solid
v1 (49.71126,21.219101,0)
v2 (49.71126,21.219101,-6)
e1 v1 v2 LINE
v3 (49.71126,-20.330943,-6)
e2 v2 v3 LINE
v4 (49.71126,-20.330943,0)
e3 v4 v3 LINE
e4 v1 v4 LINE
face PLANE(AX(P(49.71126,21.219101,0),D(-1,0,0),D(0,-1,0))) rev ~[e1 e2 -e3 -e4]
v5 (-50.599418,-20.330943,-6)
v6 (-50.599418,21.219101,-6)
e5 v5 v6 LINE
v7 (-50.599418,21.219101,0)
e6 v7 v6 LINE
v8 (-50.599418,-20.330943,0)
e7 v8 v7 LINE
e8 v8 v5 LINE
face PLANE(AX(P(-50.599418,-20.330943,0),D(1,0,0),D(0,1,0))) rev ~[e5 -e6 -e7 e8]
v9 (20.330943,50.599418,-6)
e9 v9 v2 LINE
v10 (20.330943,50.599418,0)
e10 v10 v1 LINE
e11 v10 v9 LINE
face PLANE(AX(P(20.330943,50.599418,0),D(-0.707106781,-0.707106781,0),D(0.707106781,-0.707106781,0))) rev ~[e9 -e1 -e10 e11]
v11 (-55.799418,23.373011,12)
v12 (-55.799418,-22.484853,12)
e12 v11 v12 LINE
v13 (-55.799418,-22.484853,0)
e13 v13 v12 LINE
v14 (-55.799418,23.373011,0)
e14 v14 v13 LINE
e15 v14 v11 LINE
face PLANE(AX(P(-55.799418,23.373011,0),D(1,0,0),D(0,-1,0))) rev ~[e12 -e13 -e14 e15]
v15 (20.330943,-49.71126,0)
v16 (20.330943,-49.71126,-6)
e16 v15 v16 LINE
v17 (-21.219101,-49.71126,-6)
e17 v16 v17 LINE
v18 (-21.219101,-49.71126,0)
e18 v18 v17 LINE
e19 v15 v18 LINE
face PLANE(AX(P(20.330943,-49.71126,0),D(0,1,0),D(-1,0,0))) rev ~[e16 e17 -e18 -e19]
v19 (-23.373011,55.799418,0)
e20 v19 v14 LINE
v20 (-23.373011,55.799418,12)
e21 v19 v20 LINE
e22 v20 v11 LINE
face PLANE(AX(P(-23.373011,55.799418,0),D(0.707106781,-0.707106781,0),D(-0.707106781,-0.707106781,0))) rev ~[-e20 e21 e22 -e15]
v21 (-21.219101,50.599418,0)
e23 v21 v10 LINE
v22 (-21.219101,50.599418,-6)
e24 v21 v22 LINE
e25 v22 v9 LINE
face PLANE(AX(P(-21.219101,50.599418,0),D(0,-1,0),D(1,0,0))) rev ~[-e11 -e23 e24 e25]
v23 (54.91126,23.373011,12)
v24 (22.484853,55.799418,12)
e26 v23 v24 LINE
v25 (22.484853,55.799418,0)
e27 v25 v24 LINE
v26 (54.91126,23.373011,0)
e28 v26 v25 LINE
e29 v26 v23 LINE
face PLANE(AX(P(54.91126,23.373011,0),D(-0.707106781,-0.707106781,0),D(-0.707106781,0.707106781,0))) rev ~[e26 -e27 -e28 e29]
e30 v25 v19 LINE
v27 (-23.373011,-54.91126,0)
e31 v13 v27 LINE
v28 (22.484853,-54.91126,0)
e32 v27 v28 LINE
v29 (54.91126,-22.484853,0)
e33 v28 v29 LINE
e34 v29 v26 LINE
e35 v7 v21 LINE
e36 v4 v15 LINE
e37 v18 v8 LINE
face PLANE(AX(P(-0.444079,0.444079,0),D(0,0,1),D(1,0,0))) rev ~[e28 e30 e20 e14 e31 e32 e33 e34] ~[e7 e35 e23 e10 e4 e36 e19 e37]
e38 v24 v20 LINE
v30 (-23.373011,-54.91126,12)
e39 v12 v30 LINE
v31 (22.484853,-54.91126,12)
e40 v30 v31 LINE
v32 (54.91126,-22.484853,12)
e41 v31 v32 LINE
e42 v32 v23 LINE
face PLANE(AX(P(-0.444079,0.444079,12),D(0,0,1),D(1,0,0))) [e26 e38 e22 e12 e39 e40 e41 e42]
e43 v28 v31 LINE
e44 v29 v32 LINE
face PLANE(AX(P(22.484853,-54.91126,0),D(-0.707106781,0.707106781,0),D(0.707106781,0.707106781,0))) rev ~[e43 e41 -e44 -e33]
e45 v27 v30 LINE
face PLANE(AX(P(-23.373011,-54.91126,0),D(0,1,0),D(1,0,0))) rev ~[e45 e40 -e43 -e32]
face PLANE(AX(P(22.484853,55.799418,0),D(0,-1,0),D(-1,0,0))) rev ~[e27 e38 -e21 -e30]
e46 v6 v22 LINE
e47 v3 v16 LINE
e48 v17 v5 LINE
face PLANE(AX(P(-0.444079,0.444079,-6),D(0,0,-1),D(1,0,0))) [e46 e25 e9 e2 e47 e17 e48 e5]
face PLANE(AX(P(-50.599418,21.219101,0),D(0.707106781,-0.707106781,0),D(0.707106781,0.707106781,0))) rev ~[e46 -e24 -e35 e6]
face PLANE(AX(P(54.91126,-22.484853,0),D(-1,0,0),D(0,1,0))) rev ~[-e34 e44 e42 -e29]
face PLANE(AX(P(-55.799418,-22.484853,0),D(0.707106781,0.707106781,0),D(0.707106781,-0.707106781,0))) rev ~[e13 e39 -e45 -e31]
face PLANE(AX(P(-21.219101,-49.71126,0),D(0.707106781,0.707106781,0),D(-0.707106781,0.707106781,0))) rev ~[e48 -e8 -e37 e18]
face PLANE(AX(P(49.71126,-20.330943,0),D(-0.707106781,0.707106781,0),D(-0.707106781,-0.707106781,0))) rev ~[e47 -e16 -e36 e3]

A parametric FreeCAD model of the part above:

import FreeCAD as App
import Part
import Sketcher

V = App.Vector


def add_polygon(sketch, points):
    """Adds a closed chain of lines whose ends are joined by coincident constraints."""
    first, n = sketch.GeometryCount, len(points)
    for a, b in zip(points, points[1:] + points[:1]):
        sketch.addGeometry(Part.LineSegment(App.Vector(*a, 0), App.Vector(*b, 0)), False)
    for i in range(n):
        sketch.addConstraint(Sketcher.Constraint("Coincident", first + i, 2, first + (i + 1) % n, 1))

doc = App.newDocument("Part")
body = doc.addObject("PartDesign::Body", "Body")

sketch1 = body.newObject("Sketcher::SketchObject", "Sketch")
sketch1.AttachmentSupport = (doc.getObject("XY_Plane"), [""])
sketch1.MapMode = "FlatFace"
add_polygon(sketch1, [(55, -22), (55, 23), (22, 56), (-23, 56), (-56, 23), (-56, -22), (-23, -55), (22, -55)])
sketch1.addConstraint(Sketcher.Constraint("Vertical", 0))
sketch1.addConstraint(Sketcher.Constraint("Horizontal", 2))
sketch1.addConstraint(Sketcher.Constraint("Vertical", 4))
sketch1.addConstraint(Sketcher.Constraint("Horizontal", 6))
sketch1.addConstraint(Sketcher.Constraint("Perpendicular", 1, 3))
sketch1.addConstraint(Sketcher.Constraint("Perpendicular", 3, 5))
sketch1.addConstraint(Sketcher.Constraint("Perpendicular", 5, 7))
sketch1.addConstraint(Sketcher.Constraint("Horizontal", 0, 2, 3, 2))
sketch1.addConstraint(Sketcher.Constraint("Horizontal", 4, 2, 7, 2))
sketch1.addConstraint(Sketcher.Constraint("Vertical", 2, 2, 5, 2))
sketch1.addConstraint(Sketcher.Constraint("Vertical", 1, 2, 6, 2))
sketch1.addConstraint(Sketcher.Constraint("Equal", 6, 0))
sketch1.addConstraint(Sketcher.Constraint("DistanceX", 2, 2, 2, 1, 45.857864))
sketch1.addConstraint(Sketcher.Constraint("DistanceX", -1, 1, 0, 2, 54.91126))
sketch1.addConstraint(Sketcher.Constraint("DistanceY", -1, 1, 0, 2, 23.373011))
sketch1.addConstraint(Sketcher.Constraint("DistanceY", -1, 1, 1, 2, 55.799418))
pad1 = body.newObject("PartDesign::Pad", "Pad")
pad1.Profile = sketch1
pad1.Length = 12

sketch2 = body.newObject("Sketcher::SketchObject", "Sketch001")
sketch2.AttachmentSupport = (doc.getObject("XY_Plane"), [""])
sketch2.MapMode = "FlatFace"
add_polygon(sketch2, [(-21, -50), (-51, -20), (-51, 21), (-21, 51), (20, 51), (50, 21), (50, -20), (20, -50)])
sketch2.addConstraint(Sketcher.Constraint("Vertical", 1))
sketch2.addConstraint(Sketcher.Constraint("Horizontal", 3))
sketch2.addConstraint(Sketcher.Constraint("Vertical", 5))
sketch2.addConstraint(Sketcher.Constraint("Horizontal", 7))
sketch2.addConstraint(Sketcher.Constraint("Perpendicular", 0, 2))
sketch2.addConstraint(Sketcher.Constraint("Perpendicular", 2, 4))
sketch2.addConstraint(Sketcher.Constraint("Perpendicular", 4, 6))
sketch2.addConstraint(Sketcher.Constraint("Horizontal", 1, 2, 4, 2))
sketch2.addConstraint(Sketcher.Constraint("Horizontal", 0, 2, 5, 2))
sketch2.addConstraint(Sketcher.Constraint("Vertical", 3, 2, 6, 2))
sketch2.addConstraint(Sketcher.Constraint("Vertical", 2, 2, 7, 2))
sketch2.addConstraint(Sketcher.Constraint("Equal", 7, 1))
sketch2.addConstraint(Sketcher.Constraint("DistanceY", -1, 1, 1, 2, 21.219101))
sketch2.addConstraint(Sketcher.Constraint("DistanceX", 2, 2, -1, 1, 21.219101))
sketch2.addConstraint(Sketcher.Constraint("DistanceX", 3, 1, 3, 2, 41.550044))
sketch2.addConstraint(Sketcher.Constraint("DistanceX", -1, 1, 4, 2, 49.71126))
pad2 = body.newObject("PartDesign::Pad", "Pad001")
pad2.Profile = sketch2
pad2.Length = 6
pad2.Reversed = True

doc.recompute()
